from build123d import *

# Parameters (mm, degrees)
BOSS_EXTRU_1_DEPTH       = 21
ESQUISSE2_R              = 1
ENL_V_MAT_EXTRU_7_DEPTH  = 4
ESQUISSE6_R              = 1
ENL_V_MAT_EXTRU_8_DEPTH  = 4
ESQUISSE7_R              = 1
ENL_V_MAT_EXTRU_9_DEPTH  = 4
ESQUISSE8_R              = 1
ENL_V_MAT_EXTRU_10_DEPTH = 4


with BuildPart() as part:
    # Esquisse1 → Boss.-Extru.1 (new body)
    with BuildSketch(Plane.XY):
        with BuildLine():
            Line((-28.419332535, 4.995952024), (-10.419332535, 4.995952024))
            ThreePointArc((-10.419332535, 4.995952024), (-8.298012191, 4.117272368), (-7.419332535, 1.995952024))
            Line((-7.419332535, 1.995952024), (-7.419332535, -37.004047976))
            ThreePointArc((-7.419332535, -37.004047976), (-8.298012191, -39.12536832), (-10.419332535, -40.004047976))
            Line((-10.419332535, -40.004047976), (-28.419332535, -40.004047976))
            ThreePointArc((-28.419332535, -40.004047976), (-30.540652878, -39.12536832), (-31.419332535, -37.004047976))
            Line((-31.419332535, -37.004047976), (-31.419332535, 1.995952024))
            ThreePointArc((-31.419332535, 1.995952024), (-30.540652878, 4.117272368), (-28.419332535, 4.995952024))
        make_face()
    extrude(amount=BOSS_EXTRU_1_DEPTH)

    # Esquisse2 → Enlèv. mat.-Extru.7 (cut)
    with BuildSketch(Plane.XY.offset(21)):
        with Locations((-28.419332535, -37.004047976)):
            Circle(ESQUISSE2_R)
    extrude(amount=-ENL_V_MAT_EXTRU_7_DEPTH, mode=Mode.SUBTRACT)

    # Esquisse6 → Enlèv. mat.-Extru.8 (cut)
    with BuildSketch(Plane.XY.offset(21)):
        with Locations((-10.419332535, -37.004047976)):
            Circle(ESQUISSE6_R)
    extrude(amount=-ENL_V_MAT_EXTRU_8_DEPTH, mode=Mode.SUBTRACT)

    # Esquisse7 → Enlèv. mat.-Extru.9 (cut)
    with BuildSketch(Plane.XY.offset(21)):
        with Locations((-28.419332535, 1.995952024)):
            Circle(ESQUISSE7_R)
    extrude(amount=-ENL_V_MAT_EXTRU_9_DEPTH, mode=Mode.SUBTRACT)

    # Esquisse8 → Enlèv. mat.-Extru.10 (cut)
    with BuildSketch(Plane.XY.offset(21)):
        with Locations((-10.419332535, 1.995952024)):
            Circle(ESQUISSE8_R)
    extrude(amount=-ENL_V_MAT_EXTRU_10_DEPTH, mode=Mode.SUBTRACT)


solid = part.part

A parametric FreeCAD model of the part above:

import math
import FreeCAD as App
import Part
import Sketcher

doc = App.newDocument("Part")
params = doc.addObject("Spreadsheet::Sheet", "Params")
for row, (alias, value) in enumerate([
    ("sketch1_radius", "3 mm"),
    ("sketch1_width", "18 mm"),
    ("sketch1_height", "39 mm"),
    ("pad1_length", "21 mm"),
    ("sketch2_diameter", "2 mm"),
    ("pocket1_length", "4 mm"),
    ("sketch3_diameter", "2 mm"),
    ("pocket2_length", "4 mm"),
    ("sketch4_diameter", "2 mm"),
    ("pocket3_length", "4 mm"),
    ("sketch5_diameter", "2 mm"),
    ("pocket4_length", "4 mm"),
], start=1):
    params.set(f"A{row}", alias)
    params.set(f"B{row}", "=" + value)
    params.setAlias(f"B{row}", alias)

body = doc.addObject("PartDesign::Body", "Body")

sketch1 = doc.addObject("Sketcher::SketchObject", "Sketch")
body.addObject(sketch1)
sketch1.AttachmentSupport = (doc.XY_Plane, [""])
sketch1.MapMode = "FlatFace"
sketch1.addGeometry([
    Part.LineSegment(App.Vector(-10.4, 5, 0), App.Vector(-28.4, 5, 0)),
    Part.ArcOfCircle(Part.Circle(App.Vector(-28.4, 2, 0), App.Vector(0, 0, 1), 3), math.radians(90), math.radians(180)),
    Part.LineSegment(App.Vector(-31.4, 2, 0), App.Vector(-31.4, -37, 0)),
    Part.ArcOfCircle(Part.Circle(App.Vector(-28.4, -37, 0), App.Vector(0, 0, 1), 3), math.radians(180), math.radians(270)),
    Part.LineSegment(App.Vector(-28.4, -40, 0), App.Vector(-10.4, -40, 0)),
    Part.ArcOfCircle(Part.Circle(App.Vector(-10.4, -37, 0), App.Vector(0, 0, 1), 3), math.radians(-90), math.radians(0)),
    Part.LineSegment(App.Vector(-7.4, -37, 0), App.Vector(-7.4, 2, 0)),
    Part.ArcOfCircle(Part.Circle(App.Vector(-10.4, 2, 0), App.Vector(0, 0, 1), 3), math.radians(0), math.radians(90)),
], False)
sketch1.addConstraint([
    Sketcher.Constraint("Tangent", 0, 2, 1, 1),
    Sketcher.Constraint("Tangent", 1, 2, 2, 1),
    Sketcher.Constraint("Tangent", 2, 2, 3, 1),
    Sketcher.Constraint("Tangent", 3, 2, 4, 1),
    Sketcher.Constraint("Tangent", 4, 2, 5, 1),
    Sketcher.Constraint("Tangent", 5, 2, 6, 1),
    Sketcher.Constraint("Tangent", 6, 2, 7, 1),
    Sketcher.Constraint("Tangent", 7, 2, 0, 1),
    Sketcher.Constraint("Horizontal", 0),
    Sketcher.Constraint("Vertical", 2),
    Sketcher.Constraint("Horizontal", 4),
    Sketcher.Constraint("Vertical", 6),
    Sketcher.Constraint("Equal", 1, 3),
    Sketcher.Constraint("Equal", 3, 5),
    Sketcher.Constraint("Equal", 5, 7),
    Sketcher.Constraint("Radius", 1, 3.0),
    Sketcher.Constraint("DistanceX", 0, 2, 0, 1, 18.0),
    Sketcher.Constraint("DistanceY", 2, 2, 2, 1, 39.0),
    Sketcher.Constraint("DistanceX", 1, 3, -1, 1, 28.419333),
    Sketcher.Constraint("DistanceY", -1, 1, 1, 3, 1.995952),
])
sketch1.setExpression("Constraints[15]", "Params.sketch1_radius")
sketch1.setExpression("Constraints[16]", "Params.sketch1_width")
sketch1.setExpression("Constraints[17]", "Params.sketch1_height")
pad1 = doc.addObject("PartDesign::Pad", "Pad")
body.addObject(pad1)
pad1.Profile = sketch1
pad1.setExpression("Length", "Params.pad1_length")

sketch2 = doc.addObject("Sketcher::SketchObject", "Sketch001")
body.addObject(sketch2)
sketch2.AttachmentSupport = (doc.XY_Plane, [""])
sketch2.MapMode = "FlatFace"
sketch2.AttachmentOffset = App.Placement(App.Vector(0, 0, 21), App.Rotation())
sketch2.addGeometry(Part.Circle(App.Vector(-28.4, -37, 0), App.Vector(0, 0, 1), 1), False)
sketch2.addConstraint([
    Sketcher.Constraint("Diameter", 0, 2.0),
    Sketcher.Constraint("DistanceX", 0, 3, -1, 1, 28.419333),
    Sketcher.Constraint("DistanceY", 0, 3, -1, 1, 37.004048),
])
sketch2.setExpression("Constraints[0]", "Params.sketch2_diameter")
pocket1 = doc.addObject("PartDesign::Pocket", "Pocket")
body.addObject(pocket1)
pocket1.Profile = sketch2
pocket1.setExpression("Length", "Params.pocket1_length")

sketch3 = doc.addObject("Sketcher::SketchObject", "Sketch002")
body.addObject(sketch3)
sketch3.AttachmentSupport = (doc.XY_Plane, [""])
sketch3.MapMode = "FlatFace"
sketch3.AttachmentOffset = App.Placement(App.Vector(0, 0, 21), App.Rotation())
sketch3.addGeometry(Part.Circle(App.Vector(-10.4, -37, 0), App.Vector(0, 0, 1), 1), False)
sketch3.addConstraint([
    Sketcher.Constraint("Diameter", 0, 2.0),
    Sketcher.Constraint("DistanceX", 0, 3, -1, 1, 10.419333),
    Sketcher.Constraint("DistanceY", 0, 3, -1, 1, 37.004048),
])
sketch3.setExpression("Constraints[0]", "Params.sketch3_diameter")
pocket2 = doc.addObject("PartDesign::Pocket", "Pocket001")
body.addObject(pocket2)
pocket2.Profile = sketch3
pocket2.setExpression("Length", "Params.pocket2_length")

sketch4 = doc.addObject("Sketcher::SketchObject", "Sketch003")
body.addObject(sketch4)
sketch4.AttachmentSupport = (doc.XY_Plane, [""])
sketch4.MapMode = "FlatFace"
sketch4.AttachmentOffset = App.Placement(App.Vector(0, 0, 21), App.Rotation())
sketch4.addGeometry(Part.Circle(App.Vector(-28.4, 2, 0), App.Vector(0, 0, 1), 1), False)
sketch4.addConstraint([
    Sketcher.Constraint("Diameter", 0, 2.0),
    Sketcher.Constraint("DistanceX", 0, 3, -1, 1, 28.419333),
    Sketcher.Constraint("DistanceY", -1, 1, 0, 3, 1.995952),
])
sketch4.setExpression("Constraints[0]", "Params.sketch4_diameter")
pocket3 = doc.addObject("PartDesign::Pocket", "Pocket002")
body.addObject(pocket3)
pocket3.Profile = sketch4
pocket3.setExpression("Length", "Params.pocket3_length")

sketch5 = doc.addObject("Sketcher::SketchObject", "Sketch004")
body.addObject(sketch5)
sketch5.AttachmentSupport = (doc.XY_Plane, [""])
sketch5.MapMode = "FlatFace"
sketch5.AttachmentOffset = App.Placement(App.Vector(0, 0, 21), App.Rotation())
sketch5.addGeometry(Part.Circle(App.Vector(-10.4, 2, 0), App.Vector(0, 0, 1), 1), False)
sketch5.addConstraint([
    Sketcher.Constraint("Diameter", 0, 2.0),
    Sketcher.Constraint("DistanceX", 0, 3, -1, 1, 10.419333),
    Sketcher.Constraint("DistanceY", -1, 1, 0, 3, 1.995952),
])
sketch5.setExpression("Constraints[0]", "Params.sketch5_diameter")
pocket4 = doc.addObject("PartDesign::Pocket", "Pocket003")
body.addObject(pocket4)
pocket4.Profile = sketch5
pocket4.setExpression("Length", "Params.pocket4_length")

doc.recompute()
